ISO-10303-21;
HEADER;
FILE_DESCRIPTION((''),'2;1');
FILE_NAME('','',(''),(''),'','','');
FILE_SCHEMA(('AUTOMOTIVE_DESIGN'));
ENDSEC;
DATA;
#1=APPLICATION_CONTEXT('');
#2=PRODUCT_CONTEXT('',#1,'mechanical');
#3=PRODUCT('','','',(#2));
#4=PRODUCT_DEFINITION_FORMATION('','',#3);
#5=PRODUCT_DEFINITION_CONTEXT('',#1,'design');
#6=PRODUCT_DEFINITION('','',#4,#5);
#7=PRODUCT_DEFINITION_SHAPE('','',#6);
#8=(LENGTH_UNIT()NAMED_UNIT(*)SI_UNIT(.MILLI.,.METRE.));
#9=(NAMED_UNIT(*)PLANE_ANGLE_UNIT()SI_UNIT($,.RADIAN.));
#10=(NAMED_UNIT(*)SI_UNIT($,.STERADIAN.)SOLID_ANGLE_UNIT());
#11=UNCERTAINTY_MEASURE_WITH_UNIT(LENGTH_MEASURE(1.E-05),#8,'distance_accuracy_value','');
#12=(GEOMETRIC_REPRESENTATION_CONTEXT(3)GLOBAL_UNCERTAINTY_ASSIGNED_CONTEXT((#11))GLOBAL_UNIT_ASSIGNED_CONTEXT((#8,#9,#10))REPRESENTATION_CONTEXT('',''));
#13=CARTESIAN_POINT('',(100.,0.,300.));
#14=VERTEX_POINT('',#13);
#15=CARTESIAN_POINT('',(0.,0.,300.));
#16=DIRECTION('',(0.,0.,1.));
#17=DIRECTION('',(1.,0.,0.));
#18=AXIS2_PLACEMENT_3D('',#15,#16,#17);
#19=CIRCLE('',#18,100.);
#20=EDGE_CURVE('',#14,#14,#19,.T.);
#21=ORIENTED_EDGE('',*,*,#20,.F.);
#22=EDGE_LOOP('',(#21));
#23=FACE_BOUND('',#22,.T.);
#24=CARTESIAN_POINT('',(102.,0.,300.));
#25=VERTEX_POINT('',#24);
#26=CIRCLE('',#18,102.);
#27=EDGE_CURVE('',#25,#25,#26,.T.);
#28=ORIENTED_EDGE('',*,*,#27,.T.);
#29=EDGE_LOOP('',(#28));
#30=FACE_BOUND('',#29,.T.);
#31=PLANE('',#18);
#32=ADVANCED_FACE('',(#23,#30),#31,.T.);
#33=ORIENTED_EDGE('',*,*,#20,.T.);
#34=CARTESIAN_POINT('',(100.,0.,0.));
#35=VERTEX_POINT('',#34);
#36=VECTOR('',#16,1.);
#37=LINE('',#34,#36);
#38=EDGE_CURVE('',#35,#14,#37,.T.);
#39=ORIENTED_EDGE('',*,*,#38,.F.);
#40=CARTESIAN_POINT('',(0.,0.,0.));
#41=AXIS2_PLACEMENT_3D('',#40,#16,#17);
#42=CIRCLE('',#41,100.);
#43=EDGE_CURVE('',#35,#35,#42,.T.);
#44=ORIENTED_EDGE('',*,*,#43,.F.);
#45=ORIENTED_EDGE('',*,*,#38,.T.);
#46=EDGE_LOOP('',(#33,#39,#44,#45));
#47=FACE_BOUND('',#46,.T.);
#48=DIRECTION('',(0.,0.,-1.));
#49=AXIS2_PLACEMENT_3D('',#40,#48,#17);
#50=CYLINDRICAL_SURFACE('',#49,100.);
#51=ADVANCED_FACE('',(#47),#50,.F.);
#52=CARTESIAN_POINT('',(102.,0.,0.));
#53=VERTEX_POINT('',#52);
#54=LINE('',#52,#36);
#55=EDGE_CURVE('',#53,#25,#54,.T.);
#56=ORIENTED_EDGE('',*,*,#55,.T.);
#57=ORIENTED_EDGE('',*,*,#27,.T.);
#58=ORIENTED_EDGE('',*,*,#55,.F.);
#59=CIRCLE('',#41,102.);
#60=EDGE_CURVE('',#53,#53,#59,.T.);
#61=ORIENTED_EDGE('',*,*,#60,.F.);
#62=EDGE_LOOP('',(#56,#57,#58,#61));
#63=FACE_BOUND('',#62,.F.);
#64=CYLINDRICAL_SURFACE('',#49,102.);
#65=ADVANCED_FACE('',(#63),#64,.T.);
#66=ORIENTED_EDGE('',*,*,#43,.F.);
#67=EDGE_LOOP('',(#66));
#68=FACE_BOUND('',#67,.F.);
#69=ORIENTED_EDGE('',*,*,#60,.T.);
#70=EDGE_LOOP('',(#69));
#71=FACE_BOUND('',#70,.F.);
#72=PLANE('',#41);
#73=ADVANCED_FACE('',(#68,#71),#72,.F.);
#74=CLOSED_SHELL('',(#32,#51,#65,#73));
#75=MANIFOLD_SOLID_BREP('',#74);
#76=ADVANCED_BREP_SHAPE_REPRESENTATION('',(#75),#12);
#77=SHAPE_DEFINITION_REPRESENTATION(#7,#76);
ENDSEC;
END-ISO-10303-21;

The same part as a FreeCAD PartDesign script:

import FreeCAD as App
import Part
import Sketcher
from FreeCAD import Vector

doc = App.newDocument("Part")
body = doc.addObject("PartDesign::Body", "Body")

# Sketch on XY plane
sketch1 = doc.addObject("Sketcher::SketchObject", "Sketch")
body.addObject(sketch1)
sketch1.AttachmentSupport = (doc.XY_Plane, [""])
sketch1.MapMode = "FlatFace"
sketch1.addGeometry(Part.Circle(Vector(0, 0, 0), Vector(0, 0, 1), 102), False)
sketch1.addGeometry(Part.Circle(Vector(0, 0, 0), Vector(0, 0, 1), 100), False)
sketch1.addConstraint(Sketcher.Constraint("Coincident", 0, 3, -1, 1))
sketch1.addConstraint(Sketcher.Constraint("Coincident", 1, 3, -1, 1))
sketch1.addConstraint(Sketcher.Constraint("Diameter", 1, 200.0))
sketch1.addConstraint(Sketcher.Constraint("Diameter", 0, 204.0))
pad1 = doc.addObject("PartDesign::Pad", "Pad")
body.addObject(pad1)
pad1.Profile = sketch1
pad1.Length = 300

doc.recompute()
